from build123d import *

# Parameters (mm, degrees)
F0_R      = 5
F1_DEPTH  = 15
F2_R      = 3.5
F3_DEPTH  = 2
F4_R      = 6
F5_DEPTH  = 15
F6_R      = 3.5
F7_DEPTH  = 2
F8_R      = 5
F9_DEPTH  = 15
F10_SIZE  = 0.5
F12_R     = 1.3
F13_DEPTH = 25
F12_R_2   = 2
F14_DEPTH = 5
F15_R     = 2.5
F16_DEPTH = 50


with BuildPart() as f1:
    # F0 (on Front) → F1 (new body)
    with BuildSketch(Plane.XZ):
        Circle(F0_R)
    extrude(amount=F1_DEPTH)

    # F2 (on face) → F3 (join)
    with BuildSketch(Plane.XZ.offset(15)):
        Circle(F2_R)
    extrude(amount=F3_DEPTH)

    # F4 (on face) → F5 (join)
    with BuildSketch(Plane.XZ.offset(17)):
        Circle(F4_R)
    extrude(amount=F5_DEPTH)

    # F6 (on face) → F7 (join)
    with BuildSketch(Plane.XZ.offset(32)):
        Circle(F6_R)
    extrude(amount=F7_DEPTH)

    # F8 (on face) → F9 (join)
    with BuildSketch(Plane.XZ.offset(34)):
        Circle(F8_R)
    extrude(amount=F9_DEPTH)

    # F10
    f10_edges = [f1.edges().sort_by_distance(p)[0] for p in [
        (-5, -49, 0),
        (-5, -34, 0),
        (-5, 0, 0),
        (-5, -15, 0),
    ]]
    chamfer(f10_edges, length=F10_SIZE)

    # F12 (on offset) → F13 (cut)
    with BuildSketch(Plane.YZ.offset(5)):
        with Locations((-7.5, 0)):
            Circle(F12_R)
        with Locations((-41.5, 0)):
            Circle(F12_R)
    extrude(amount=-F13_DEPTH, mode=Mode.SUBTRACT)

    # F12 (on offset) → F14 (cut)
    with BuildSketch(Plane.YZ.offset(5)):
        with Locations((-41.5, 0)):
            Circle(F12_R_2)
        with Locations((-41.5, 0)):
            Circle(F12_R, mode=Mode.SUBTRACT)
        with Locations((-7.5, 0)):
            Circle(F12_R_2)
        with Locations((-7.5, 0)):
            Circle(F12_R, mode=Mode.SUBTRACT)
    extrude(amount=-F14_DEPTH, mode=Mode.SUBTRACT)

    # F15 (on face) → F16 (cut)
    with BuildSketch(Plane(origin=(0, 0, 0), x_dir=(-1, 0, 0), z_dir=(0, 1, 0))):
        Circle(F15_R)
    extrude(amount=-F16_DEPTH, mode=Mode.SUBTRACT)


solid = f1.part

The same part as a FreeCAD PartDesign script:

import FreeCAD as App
import Part
import Sketcher
from FreeCAD import Vector
Q = App.Units.Quantity


def edges_at(feature, points):
    """Names of the edges that pass closest to the given points."""
    edges = feature.Shape.Edges
    near = lambda p: min(range(len(edges)), key=lambda i: edges[i].distToShape(Part.Vertex(*p))[0])
    return sorted({f"Edge{near(p) + 1}" for p in points})

doc = App.newDocument("Part")
body = doc.addObject("PartDesign::Body", "Body")

sketch1 = doc.addObject("Sketcher::SketchObject", "Sketch")
body.addObject(sketch1)
sketch1.AttachmentSupport = (doc.XZ_Plane, [""])
sketch1.MapMode = "FlatFace"
sketch1.addGeometry(Part.Circle(Vector(0, 0, 0), Vector(0, 0, 1), 5), False)
sketch1.addConstraint([
    Sketcher.Constraint("Coincident", 0, 3, -1, 1),
    Sketcher.Constraint("Diameter", 0, Q("10 mm")),
])
pad1 = doc.addObject("PartDesign::Pad", "Pad")
body.addObject(pad1)
pad1.Profile = sketch1
pad1.Length = 15

sketch2 = doc.addObject("Sketcher::SketchObject", "Sketch001")
body.addObject(sketch2)
sketch2.AttachmentSupport = (doc.XZ_Plane, [""])
sketch2.MapMode = "FlatFace"
sketch2.AttachmentOffset = App.Placement(Vector(0, 0, 15), App.Rotation())
sketch2.addGeometry(Part.Circle(Vector(0, 0, 0), Vector(0, 0, 1), 3.5), False)
sketch2.addConstraint([
    Sketcher.Constraint("Coincident", 0, 3, -1, 1),
    Sketcher.Constraint("Diameter", 0, Q("7 mm")),
])
pad2 = doc.addObject("PartDesign::Pad", "Pad001")
body.addObject(pad2)
pad2.Profile = sketch2
pad2.Length = 2

sketch3 = doc.addObject("Sketcher::SketchObject", "Sketch002")
body.addObject(sketch3)
sketch3.AttachmentSupport = (doc.XZ_Plane, [""])
sketch3.MapMode = "FlatFace"
sketch3.AttachmentOffset = App.Placement(Vector(0, 0, 17), App.Rotation())
sketch3.addGeometry(Part.Circle(Vector(0, 0, 0), Vector(0, 0, 1), 6), False)
sketch3.addConstraint([
    Sketcher.Constraint("Coincident", 0, 3, -1, 1),
    Sketcher.Constraint("Diameter", 0, Q("12 mm")),
])
pad3 = doc.addObject("PartDesign::Pad", "Pad002")
body.addObject(pad3)
pad3.Profile = sketch3
pad3.Length = 15

sketch4 = doc.addObject("Sketcher::SketchObject", "Sketch003")
body.addObject(sketch4)
sketch4.AttachmentSupport = (doc.XZ_Plane, [""])
sketch4.MapMode = "FlatFace"
sketch4.AttachmentOffset = App.Placement(Vector(0, 0, 32), App.Rotation())
sketch4.addGeometry(Part.Circle(Vector(0, 0, 0), Vector(0, 0, 1), 3.5), False)
sketch4.addConstraint([
    Sketcher.Constraint("Coincident", 0, 3, -1, 1),
    Sketcher.Constraint("Diameter", 0, Q("7 mm")),
])
pad4 = doc.addObject("PartDesign::Pad", "Pad003")
body.addObject(pad4)
pad4.Profile = sketch4
pad4.Length = 2

sketch5 = doc.addObject("Sketcher::SketchObject", "Sketch004")
body.addObject(sketch5)
sketch5.AttachmentSupport = (doc.XZ_Plane, [""])
sketch5.MapMode = "FlatFace"
sketch5.AttachmentOffset = App.Placement(Vector(0, 0, 34), App.Rotation())
sketch5.addGeometry(Part.Circle(Vector(0, 0, 0), Vector(0, 0, 1), 5), False)
sketch5.addConstraint([
    Sketcher.Constraint("Coincident", 0, 3, -1, 1),
    Sketcher.Constraint("Diameter", 0, Q("10 mm")),
])
pad5 = doc.addObject("PartDesign::Pad", "Pad004")
body.addObject(pad5)
pad5.Profile = sketch5
pad5.Length = 15
doc.recompute()

chamfer = doc.addObject("PartDesign::Chamfer", "Chamfer")
body.addObject(chamfer)
chamfer.Base = (pad5, edges_at(pad5, [
    (-5, -49, 0),
    (-5, -34, 0),
    (-5, 0, 0),
    (-5, -15, 0),
]))
chamfer.Size = 0.5

sketch6 = doc.addObject("Sketcher::SketchObject", "Sketch005")
body.addObject(sketch6)
sketch6.AttachmentSupport = (doc.YZ_Plane, [""])
sketch6.MapMode = "FlatFace"
sketch6.AttachmentOffset = App.Placement(Vector(0, 0, 5), App.Rotation())
sketch6.addGeometry([
    Part.Circle(Vector(-7.5, 0, 0), Vector(0, 0, 1), 1.3),
    Part.Circle(Vector(-41.5, 0, 0), Vector(0, 0, 1), 1.3),
], False)
sketch6.addConstraint([
    Sketcher.Constraint("Equal", 0, 1),
    Sketcher.Constraint("PointOnObject", 0, 3, -1),
    Sketcher.Constraint("PointOnObject", 1, 3, -1),
    Sketcher.Constraint("Diameter", 0, Q("2.6 mm")),
    Sketcher.Constraint("DistanceX", 1, 3, 0, 3, Q("34 mm")),
    Sketcher.Constraint("DistanceX", 0, 3, -1, 1, Q("7.5 mm")),
])
pocket1 = doc.addObject("PartDesign::Pocket", "Pocket")
body.addObject(pocket1)
pocket1.Profile = sketch6
pocket1.Length = 25

sketch7 = doc.addObject("Sketcher::SketchObject", "Sketch006")
body.addObject(sketch7)
sketch7.AttachmentSupport = (doc.YZ_Plane, [""])
sketch7.MapMode = "FlatFace"
sketch7.AttachmentOffset = App.Placement(Vector(0, 0, 5), App.Rotation())
sketch7.addGeometry([
    Part.Circle(Vector(-41.5, 0, 0), Vector(0, 0, 1), 2),
    Part.Circle(Vector(-41.5, 0, 0), Vector(0, 0, 1), 1.3),
    Part.Circle(Vector(-7.5, 0, 0), Vector(0, 0, 1), 2),
    Part.Circle(Vector(-7.5, 0, 0), Vector(0, 0, 1), 1.3),
], False)
sketch7.addConstraint([
    Sketcher.Constraint("Coincident", 1, 3, 0, 3),
    Sketcher.Constraint("Coincident", 3, 3, 2, 3),
    Sketcher.Constraint("Equal", 0, 2),
    Sketcher.Constraint("Equal", 1, 3),
    Sketcher.Constraint("PointOnObject", 0, 3, -1),
    Sketcher.Constraint("PointOnObject", 2, 3, -1),
    Sketcher.Constraint("Diameter", 0, Q("4 mm")),
    Sketcher.Constraint("Diameter", 1, Q("2.6 mm")),
    Sketcher.Constraint("DistanceX", 0, 3, 2, 3, Q("34 mm")),
    Sketcher.Constraint("DistanceX", 0, 3, -1, 1, Q("41.5 mm")),
])
pocket2 = doc.addObject("PartDesign::Pocket", "Pocket001")
body.addObject(pocket2)
pocket2.Profile = sketch7
pocket2.Length = 5

sketch8 = doc.addObject("Sketcher::SketchObject", "Sketch007")
body.addObject(sketch8)
sketch8.AttachmentSupport = (doc.XZ_Plane, [""])
sketch8.MapMode = "FlatFace"
sketch8.addGeometry(Part.Circle(Vector(0, 0, 0), Vector(0, 0, 1), 2.5), False)
sketch8.addConstraint([
    Sketcher.Constraint("Coincident", 0, 3, -1, 1),
    Sketcher.Constraint("Diameter", 0, Q("5 mm")),
])
pocket3 = doc.addObject("PartDesign::Pocket", "Pocket002")
body.addObject(pocket3)
pocket3.Profile = sketch8
pocket3.Length = 50
pocket3.Reversed = True

doc.recompute()
